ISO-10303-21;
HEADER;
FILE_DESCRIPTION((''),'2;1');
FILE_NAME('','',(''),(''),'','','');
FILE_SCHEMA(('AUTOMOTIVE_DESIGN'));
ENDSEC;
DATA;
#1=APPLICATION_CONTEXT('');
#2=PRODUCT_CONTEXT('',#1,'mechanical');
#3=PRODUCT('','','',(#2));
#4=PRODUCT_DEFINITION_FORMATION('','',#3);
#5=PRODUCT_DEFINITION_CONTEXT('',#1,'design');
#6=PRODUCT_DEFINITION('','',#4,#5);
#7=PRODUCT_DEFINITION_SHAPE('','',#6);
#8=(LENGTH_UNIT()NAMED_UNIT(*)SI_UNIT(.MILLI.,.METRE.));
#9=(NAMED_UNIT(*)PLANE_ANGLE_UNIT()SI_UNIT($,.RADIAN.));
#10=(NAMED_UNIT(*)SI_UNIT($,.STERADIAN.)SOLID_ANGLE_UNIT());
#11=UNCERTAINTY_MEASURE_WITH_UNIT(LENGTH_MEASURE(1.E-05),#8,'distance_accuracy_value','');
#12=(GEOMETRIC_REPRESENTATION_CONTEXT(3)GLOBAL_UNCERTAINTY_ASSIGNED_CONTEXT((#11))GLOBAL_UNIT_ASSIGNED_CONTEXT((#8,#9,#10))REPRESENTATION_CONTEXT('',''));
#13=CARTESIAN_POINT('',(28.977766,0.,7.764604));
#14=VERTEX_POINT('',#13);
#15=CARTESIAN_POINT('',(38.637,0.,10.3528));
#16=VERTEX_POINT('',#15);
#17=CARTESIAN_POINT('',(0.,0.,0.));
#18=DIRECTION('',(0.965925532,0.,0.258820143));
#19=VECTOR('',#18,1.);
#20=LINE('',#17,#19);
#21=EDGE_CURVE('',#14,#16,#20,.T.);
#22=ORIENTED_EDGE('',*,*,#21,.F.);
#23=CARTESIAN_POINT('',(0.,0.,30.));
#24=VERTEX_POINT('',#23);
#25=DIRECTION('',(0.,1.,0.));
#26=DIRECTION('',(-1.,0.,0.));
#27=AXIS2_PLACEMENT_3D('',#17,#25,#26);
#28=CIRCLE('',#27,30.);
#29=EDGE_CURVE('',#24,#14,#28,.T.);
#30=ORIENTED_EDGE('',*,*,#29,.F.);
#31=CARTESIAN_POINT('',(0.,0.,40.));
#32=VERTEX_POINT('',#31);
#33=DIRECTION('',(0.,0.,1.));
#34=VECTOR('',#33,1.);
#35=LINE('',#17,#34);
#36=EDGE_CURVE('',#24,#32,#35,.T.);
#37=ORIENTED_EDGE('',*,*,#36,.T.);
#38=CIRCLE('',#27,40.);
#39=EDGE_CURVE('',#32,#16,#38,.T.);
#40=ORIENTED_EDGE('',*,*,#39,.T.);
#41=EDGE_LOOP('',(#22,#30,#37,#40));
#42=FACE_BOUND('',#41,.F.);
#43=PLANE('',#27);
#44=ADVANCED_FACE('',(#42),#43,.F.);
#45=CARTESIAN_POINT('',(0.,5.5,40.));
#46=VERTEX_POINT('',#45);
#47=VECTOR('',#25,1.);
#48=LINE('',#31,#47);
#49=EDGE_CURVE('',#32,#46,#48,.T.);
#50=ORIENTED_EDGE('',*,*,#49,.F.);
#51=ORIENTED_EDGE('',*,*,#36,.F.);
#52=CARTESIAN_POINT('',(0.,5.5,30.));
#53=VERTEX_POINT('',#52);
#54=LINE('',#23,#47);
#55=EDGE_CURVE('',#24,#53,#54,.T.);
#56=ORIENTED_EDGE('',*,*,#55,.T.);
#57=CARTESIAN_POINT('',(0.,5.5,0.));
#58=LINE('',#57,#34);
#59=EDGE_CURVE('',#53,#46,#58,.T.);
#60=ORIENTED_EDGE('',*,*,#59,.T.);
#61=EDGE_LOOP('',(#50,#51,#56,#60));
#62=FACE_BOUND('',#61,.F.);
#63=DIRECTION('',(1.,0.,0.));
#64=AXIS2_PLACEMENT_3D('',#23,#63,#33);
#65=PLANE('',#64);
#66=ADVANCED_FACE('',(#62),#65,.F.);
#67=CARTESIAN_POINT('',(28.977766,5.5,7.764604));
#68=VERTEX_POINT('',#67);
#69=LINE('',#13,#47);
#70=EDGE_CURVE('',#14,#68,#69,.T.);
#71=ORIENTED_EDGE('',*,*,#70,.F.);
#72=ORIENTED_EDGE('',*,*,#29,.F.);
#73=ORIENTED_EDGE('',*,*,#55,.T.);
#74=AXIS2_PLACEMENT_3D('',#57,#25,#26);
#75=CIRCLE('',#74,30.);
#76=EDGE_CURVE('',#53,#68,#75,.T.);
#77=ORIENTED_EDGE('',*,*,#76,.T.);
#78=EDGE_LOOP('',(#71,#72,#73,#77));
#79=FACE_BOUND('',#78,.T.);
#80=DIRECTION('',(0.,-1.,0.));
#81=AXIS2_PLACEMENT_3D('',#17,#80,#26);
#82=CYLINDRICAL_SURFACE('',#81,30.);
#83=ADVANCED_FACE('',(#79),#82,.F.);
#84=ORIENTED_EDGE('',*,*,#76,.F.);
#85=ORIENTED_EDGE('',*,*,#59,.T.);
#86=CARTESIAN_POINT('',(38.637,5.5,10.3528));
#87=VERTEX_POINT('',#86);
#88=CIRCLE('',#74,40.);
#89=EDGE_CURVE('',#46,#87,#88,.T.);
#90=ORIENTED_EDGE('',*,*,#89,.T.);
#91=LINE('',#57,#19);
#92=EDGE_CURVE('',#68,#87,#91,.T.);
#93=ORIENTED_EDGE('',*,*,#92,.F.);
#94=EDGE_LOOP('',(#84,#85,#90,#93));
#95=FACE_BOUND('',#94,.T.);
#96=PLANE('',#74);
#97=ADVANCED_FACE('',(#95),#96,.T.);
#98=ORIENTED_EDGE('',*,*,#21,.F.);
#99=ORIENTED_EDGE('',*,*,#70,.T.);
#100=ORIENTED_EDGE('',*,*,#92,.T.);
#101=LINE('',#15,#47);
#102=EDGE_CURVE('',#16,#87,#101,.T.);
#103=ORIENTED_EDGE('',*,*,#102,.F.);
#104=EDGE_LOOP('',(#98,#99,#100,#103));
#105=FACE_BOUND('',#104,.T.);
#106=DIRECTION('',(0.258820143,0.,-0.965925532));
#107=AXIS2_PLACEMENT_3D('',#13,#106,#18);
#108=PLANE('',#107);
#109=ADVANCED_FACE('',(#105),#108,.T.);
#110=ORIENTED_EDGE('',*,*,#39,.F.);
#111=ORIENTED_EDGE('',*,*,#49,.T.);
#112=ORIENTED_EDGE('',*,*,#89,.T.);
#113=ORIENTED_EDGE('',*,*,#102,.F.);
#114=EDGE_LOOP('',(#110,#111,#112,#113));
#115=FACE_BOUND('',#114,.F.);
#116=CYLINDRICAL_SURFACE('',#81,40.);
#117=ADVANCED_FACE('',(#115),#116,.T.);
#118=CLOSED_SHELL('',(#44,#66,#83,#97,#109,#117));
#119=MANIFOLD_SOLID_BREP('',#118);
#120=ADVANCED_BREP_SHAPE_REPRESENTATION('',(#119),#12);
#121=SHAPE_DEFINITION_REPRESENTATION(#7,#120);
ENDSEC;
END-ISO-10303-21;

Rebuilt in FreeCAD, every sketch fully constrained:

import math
import FreeCAD as App
import Part
import Sketcher

V = App.Vector
Q = App.Units.Quantity

doc = App.newDocument("Part")
params = doc.addObject("Spreadsheet::Sheet", "Params")
for row, (alias, value) in enumerate([
    ("sketch1_radius", "30 mm"),
    ("sketch1_height", "10 mm"),
    ("pad1_length", "5.5 mm"),
], start=1):
    params.set(f"A{row}", alias)
    params.set(f"B{row}", "=" + value)
    params.setAlias(f"B{row}", alias)

body = doc.addObject("PartDesign::Body", "Body")

sketch1 = doc.addObject("Sketcher::SketchObject", "Sketch")
body.addObject(sketch1)
sketch1.AttachmentSupport = (doc.XZ_Plane, [""])
sketch1.MapMode = "FlatFace"
sketch1.addGeometry(Part.LineSegment(V(0, 30, 0), V(0, 40, 0)), False)
sketch1.addGeometry(Part.ArcOfCircle(Part.Circle(V(0, 0, 0), V(0, 0, 1), 40), math.radians(15), math.radians(90)), False)
sketch1.addGeometry(Part.LineSegment(V(39, 10, 0), V(29, 8, 0)), False)
sketch1.addGeometry(Part.ArcOfCircle(Part.Circle(V(0, 0, 0), V(0, 0, 1), 30), math.radians(15), math.radians(90)), False)
sketch1.addConstraint(Sketcher.Constraint("Coincident", 0, 2, 1, 2))
sketch1.addConstraint(Sketcher.Constraint("Coincident", 1, 1, 2, 1))
sketch1.addConstraint(Sketcher.Constraint("Coincident", 2, 2, 3, 1))
sketch1.addConstraint(Sketcher.Constraint("Coincident", 3, 2, 0, 1))
sketch1.addConstraint(Sketcher.Constraint("Vertical", 0))
sketch1.addConstraint(Sketcher.Constraint("Coincident", 1, 3, -1, 1))
sketch1.addConstraint(Sketcher.Constraint("Coincident", 3, 3, -1, 1))
sketch1.addConstraint(Sketcher.Constraint("PointOnObject", 0, 2, -2))
sketch1.addConstraint(Sketcher.Constraint("Radius", 3, Q("30 mm")))
sketch1.addConstraint(Sketcher.Constraint("DistanceY", 0, 1, 0, 2, Q("10 mm")))
sketch1.addConstraint(Sketcher.Constraint("Angle", 2, Q("-165 deg")))
sketch1.addConstraint(Sketcher.Constraint("DistanceX", -1, 1, 1, 1, Q("38.637 mm")))
sketch1.setExpression("Constraints[8]", "Params.sketch1_radius")
sketch1.setExpression("Constraints[9]", "Params.sketch1_height")
pad1 = doc.addObject("PartDesign::Pad", "Pad")
body.addObject(pad1)
pad1.Profile = sketch1
pad1.setExpression("Length", "Params.pad1_length")
pad1.Reversed = True

doc.recompute()
